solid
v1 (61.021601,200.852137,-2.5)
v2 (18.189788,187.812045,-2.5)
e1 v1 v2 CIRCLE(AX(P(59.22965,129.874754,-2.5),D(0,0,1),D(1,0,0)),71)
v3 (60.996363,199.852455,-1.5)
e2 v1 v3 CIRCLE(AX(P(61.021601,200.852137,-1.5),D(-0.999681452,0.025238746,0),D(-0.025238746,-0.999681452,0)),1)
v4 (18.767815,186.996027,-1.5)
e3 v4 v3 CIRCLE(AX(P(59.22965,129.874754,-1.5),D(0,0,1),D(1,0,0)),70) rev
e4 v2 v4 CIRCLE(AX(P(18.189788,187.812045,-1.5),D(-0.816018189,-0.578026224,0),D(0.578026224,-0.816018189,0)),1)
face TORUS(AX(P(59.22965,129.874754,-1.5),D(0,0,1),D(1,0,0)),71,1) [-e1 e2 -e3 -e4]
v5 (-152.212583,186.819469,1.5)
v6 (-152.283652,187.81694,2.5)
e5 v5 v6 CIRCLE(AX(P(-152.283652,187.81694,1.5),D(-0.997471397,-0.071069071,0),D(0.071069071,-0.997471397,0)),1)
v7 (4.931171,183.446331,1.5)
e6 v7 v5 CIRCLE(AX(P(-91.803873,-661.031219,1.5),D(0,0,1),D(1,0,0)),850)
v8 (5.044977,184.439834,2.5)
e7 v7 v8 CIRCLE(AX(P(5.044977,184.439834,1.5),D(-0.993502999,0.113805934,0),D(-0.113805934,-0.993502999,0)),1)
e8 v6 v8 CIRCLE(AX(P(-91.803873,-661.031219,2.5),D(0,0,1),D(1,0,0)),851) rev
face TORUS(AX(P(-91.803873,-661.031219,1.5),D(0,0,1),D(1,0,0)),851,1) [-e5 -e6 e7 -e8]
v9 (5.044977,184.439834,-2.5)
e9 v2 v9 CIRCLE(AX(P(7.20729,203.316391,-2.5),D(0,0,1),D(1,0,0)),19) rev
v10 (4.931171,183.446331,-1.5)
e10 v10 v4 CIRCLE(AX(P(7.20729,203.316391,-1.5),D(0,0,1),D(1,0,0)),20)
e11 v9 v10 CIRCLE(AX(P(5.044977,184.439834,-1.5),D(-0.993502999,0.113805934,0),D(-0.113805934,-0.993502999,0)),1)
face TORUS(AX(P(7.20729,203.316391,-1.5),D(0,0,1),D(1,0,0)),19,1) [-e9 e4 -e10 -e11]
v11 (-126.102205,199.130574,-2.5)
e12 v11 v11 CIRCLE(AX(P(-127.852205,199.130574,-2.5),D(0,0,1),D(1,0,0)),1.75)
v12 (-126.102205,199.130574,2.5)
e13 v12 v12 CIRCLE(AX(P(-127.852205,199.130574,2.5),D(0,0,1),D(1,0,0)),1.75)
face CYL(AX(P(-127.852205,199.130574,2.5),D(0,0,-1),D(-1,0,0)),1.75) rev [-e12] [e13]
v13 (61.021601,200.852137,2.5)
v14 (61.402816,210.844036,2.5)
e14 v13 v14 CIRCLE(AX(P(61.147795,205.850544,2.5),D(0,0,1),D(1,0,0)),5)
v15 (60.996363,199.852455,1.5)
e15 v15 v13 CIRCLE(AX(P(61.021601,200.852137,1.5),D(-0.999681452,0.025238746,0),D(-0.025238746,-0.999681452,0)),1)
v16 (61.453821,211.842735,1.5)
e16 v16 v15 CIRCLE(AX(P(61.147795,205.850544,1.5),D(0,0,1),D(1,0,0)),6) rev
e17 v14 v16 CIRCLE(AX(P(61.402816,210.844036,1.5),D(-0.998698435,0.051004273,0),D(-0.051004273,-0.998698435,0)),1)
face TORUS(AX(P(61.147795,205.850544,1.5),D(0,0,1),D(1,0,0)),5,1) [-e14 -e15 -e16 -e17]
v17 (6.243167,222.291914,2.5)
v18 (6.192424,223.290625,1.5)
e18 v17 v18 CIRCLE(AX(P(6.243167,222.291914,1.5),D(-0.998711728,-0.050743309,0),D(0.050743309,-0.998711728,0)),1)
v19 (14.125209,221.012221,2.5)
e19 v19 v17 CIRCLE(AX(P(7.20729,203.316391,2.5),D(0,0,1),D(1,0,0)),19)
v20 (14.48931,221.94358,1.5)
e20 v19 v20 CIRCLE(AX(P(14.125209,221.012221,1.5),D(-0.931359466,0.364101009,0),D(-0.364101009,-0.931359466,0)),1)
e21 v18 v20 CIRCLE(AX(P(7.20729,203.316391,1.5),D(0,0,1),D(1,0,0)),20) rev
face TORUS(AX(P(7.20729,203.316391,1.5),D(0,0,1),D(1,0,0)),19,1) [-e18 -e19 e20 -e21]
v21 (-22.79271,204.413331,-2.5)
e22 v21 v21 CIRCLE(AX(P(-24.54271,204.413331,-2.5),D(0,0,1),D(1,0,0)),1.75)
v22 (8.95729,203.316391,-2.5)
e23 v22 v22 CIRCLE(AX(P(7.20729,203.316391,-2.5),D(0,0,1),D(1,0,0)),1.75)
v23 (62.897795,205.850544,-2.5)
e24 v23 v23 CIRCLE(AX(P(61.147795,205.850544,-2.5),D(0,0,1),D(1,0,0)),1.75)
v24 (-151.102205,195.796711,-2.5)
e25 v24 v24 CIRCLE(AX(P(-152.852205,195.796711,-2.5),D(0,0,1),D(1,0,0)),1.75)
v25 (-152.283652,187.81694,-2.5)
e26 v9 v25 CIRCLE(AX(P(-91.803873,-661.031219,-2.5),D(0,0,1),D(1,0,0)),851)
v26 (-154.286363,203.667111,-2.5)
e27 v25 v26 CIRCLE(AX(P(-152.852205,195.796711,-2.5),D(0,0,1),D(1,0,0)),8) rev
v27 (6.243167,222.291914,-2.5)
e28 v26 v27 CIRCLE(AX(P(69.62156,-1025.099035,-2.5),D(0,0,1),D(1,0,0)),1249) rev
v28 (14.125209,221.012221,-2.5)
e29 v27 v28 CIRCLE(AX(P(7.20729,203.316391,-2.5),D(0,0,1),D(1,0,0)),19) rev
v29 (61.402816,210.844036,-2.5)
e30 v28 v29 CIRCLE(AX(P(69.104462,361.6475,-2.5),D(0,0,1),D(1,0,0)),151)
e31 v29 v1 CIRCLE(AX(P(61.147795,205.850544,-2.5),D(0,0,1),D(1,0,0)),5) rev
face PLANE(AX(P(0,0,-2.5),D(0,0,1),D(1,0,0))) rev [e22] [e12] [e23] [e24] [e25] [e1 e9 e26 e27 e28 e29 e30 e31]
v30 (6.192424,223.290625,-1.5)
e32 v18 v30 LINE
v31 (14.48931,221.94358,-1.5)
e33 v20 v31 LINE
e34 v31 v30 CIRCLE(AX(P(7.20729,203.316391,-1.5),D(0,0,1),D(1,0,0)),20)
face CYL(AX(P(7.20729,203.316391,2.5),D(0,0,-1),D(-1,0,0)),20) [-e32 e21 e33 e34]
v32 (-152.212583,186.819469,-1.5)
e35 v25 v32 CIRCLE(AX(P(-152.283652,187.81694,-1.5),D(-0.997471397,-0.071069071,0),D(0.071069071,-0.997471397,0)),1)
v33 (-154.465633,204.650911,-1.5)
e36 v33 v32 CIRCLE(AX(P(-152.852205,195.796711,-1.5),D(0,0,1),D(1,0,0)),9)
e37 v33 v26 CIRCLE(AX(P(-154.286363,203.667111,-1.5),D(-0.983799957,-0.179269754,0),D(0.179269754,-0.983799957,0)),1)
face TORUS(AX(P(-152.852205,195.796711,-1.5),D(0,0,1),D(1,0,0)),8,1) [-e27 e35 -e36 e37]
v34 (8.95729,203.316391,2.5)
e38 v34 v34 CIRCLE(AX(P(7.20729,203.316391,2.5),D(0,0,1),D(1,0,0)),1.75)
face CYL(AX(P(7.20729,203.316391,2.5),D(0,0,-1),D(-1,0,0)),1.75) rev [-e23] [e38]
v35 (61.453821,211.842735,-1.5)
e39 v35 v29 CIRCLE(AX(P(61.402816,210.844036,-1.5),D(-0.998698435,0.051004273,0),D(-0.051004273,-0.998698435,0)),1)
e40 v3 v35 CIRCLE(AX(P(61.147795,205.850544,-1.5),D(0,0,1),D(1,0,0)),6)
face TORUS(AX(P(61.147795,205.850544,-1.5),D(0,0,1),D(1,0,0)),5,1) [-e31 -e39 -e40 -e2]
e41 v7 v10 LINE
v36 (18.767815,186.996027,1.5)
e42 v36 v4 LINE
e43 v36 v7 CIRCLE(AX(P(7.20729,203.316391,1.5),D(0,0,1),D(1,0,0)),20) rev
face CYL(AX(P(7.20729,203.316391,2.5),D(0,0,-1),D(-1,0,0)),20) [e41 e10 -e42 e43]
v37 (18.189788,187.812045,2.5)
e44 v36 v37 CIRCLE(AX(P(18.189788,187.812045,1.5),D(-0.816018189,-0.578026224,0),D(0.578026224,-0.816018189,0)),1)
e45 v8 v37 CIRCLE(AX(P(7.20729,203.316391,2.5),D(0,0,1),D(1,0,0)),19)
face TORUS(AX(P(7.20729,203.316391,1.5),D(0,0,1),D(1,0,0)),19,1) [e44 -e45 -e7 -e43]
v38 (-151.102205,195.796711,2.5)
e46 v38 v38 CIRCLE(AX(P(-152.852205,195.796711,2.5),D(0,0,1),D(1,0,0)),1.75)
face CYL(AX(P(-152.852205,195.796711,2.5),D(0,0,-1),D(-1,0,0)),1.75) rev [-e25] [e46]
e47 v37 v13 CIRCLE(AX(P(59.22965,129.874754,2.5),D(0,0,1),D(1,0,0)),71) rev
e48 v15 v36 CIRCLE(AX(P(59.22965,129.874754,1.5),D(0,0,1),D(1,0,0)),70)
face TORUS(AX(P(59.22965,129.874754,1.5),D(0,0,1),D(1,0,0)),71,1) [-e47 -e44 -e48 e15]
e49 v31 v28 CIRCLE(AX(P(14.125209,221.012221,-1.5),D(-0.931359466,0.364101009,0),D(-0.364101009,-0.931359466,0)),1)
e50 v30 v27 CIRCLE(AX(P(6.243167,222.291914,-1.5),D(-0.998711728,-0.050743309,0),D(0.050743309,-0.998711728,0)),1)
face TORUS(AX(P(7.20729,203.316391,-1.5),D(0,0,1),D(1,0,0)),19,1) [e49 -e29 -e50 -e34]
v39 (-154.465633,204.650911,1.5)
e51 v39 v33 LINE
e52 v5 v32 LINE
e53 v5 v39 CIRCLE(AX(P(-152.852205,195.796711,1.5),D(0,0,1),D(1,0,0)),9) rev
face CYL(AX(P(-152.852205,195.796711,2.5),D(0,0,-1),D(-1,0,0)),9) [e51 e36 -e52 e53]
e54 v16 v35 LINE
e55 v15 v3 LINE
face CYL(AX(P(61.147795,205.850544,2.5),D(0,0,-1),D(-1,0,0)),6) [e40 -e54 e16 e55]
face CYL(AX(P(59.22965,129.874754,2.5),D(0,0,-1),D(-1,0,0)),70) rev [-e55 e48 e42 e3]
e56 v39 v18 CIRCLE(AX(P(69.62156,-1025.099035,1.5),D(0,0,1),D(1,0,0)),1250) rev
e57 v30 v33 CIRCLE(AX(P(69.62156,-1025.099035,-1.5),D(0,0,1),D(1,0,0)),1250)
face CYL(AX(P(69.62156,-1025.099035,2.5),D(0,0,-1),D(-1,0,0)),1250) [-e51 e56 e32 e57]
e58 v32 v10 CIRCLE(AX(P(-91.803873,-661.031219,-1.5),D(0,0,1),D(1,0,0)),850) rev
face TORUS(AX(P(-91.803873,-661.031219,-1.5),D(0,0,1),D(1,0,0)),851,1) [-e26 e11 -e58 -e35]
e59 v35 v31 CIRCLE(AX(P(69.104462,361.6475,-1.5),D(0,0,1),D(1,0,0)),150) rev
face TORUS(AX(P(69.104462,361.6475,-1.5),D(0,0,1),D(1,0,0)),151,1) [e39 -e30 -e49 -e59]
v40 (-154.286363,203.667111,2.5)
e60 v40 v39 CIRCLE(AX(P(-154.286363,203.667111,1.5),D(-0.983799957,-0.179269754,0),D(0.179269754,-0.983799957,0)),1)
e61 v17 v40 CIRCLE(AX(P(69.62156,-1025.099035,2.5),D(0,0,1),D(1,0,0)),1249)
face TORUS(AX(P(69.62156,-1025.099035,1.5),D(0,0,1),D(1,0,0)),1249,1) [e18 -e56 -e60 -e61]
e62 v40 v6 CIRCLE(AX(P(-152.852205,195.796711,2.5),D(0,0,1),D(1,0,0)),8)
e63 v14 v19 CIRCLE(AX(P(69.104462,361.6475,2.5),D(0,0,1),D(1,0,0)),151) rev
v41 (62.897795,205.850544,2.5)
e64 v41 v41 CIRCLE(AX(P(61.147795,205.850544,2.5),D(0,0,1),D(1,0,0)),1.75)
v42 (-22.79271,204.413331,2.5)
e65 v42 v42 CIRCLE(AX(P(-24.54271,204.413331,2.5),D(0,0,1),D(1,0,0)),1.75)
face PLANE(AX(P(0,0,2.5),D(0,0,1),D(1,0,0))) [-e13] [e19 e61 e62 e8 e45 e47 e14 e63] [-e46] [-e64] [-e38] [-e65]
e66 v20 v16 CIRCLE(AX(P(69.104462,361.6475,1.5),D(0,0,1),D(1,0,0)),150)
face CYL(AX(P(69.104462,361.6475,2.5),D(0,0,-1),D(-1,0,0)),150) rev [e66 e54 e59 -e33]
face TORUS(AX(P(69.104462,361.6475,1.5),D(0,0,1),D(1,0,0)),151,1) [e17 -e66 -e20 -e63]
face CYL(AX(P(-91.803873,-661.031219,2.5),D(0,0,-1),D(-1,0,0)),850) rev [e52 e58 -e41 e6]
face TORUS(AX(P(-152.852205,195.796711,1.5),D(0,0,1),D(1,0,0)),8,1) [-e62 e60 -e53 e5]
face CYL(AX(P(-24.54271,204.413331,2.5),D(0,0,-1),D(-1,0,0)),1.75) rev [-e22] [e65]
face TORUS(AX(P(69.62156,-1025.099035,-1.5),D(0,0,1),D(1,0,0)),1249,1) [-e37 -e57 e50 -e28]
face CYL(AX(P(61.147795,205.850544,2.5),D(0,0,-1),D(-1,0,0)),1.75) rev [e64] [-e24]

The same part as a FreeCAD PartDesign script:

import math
import FreeCAD as App
import Part
import Sketcher
from FreeCAD import Vector


def edges_at(feature, points):
    """Names of the edges that pass closest to the given points."""
    edges = feature.Shape.Edges
    near = lambda p: min(range(len(edges)), key=lambda i: edges[i].distToShape(Part.Vertex(*p))[0])
    return sorted({f"Edge{near(p) + 1}" for p in points})

doc = App.newDocument("Part")
params = doc.addObject("Spreadsheet::Sheet", "Params")
for row, (alias, value) in enumerate([
    ("sketch1_radius", "850 mm"),
    ("sketch1_radius2", "20 mm"),
    ("sketch1_radius3", "70 mm"),
    ("sketch1_radius4", "6 mm"),
    ("sketch1_radius5", "150 mm"),
    ("pad1_length", "5 mm"),
    ("fillet_radius", "1 mm"),
], start=1):
    params.set(f"A{row}", alias)
    params.set(f"B{row}", "=" + value)
    params.setAlias(f"B{row}", alias)

body = doc.addObject("PartDesign::Body", "Body")

# Sketch on XY plane
sketch1 = body.newObject("Sketcher::SketchObject", "Sketch")
sketch1.AttachmentSupport = (doc.getObject("XY_Plane"), [""])
sketch1.MapMode = "FlatFace"
sketch1.addGeometry([
    Part.ArcOfCircle(Part.Circle(Vector(-91.8, -661, 0), Vector(0, 0, 1), 850), math.radians(83.47), math.radians(94.08)),  # 0
    Part.ArcOfCircle(Part.Circle(Vector(7.2, 203.3, 0), Vector(0, 0, 1), 20), math.radians(-97), math.radians(-55)),  # 1
    Part.ArcOfCircle(Part.Circle(Vector(59.2, 129.9, 0), Vector(0, 0, 1), 70), math.radians(89), math.radians(125)),  # 2
    Part.ArcOfCircle(Part.Circle(Vector(61.1, 205.9, 0), Vector(0, 0, 1), 6), math.radians(-91), math.radians(87)),  # 3
    Part.ArcOfCircle(Part.Circle(Vector(69.1, 361.6, 0), Vector(0, 0, 1), 150), math.radians(-111.35), math.radians(-92.92)),  # 4
    Part.ArcOfCircle(Part.Circle(Vector(7.2, 203.3, 0), Vector(0, 0, 1), 20), math.radians(69), math.radians(93)),  # 5
    Part.ArcOfCircle(Part.Circle(Vector(69.6, -1025.1, 0), Vector(0, 0, 1), 1250), math.radians(92.91), math.radians(100.33)),  # 6
    Part.ArcOfCircle(Part.Circle(Vector(-152.9, 195.8, 0), Vector(0, 0, 1), 9), math.radians(100), math.radians(274)),  # 7
    Part.Circle(Vector(-127.9, 199.1, 0), Vector(0, 0, 1), 1.8),  # 8
    Part.Circle(Vector(-24.5, 204.4, 0), Vector(0, 0, 1), 1.8),  # 9
    Part.Circle(Vector(-152.9, 195.8, 0), Vector(0, 0, 1), 1.8),  # 10
    Part.Circle(Vector(7.2, 203.3, 0), Vector(0, 0, 1), 1.8),  # 11
    Part.Circle(Vector(61.1, 205.9, 0), Vector(0, 0, 1), 1.8),  # 12
], False)
sketch1.addConstraint([
    Sketcher.Constraint("Tangent", 0, 1, 1, 1),
    Sketcher.Constraint("Tangent", 1, 2, 2, 2),
    Sketcher.Constraint("Tangent", 2, 1, 3, 1),
    Sketcher.Constraint("Tangent", 3, 2, 4, 2),
    Sketcher.Constraint("Tangent", 4, 1, 5, 1),
    Sketcher.Constraint("Tangent", 5, 2, 6, 1),
    Sketcher.Constraint("Tangent", 6, 2, 7, 1),
    Sketcher.Constraint("Tangent", 7, 2, 0, 2),
    Sketcher.Constraint("Coincident", 5, 3, 1, 3),
    Sketcher.Constraint("Coincident", 10, 3, 7, 3),
    Sketcher.Constraint("Coincident", 11, 3, 1, 3),
    Sketcher.Constraint("Coincident", 12, 3, 3, 3),
    Sketcher.Constraint("Equal", 1, 5),
    Sketcher.Constraint("Equal", 8, 9),
    Sketcher.Constraint("Equal", 9, 10),
    Sketcher.Constraint("Equal", 10, 11),
    Sketcher.Constraint("Equal", 11, 12),
    Sketcher.Constraint("Radius", 0, 850.0),
    Sketcher.Constraint("Radius", 1, 20.0),
    Sketcher.Constraint("Radius", 2, 70.0),
    Sketcher.Constraint("Radius", 3, 6.0),
    Sketcher.Constraint("Radius", 4, 150.0),
    Sketcher.Constraint("Radius", 6, 1250.0),
    Sketcher.Constraint("Radius", 7, 9.0),
    Sketcher.Constraint("Diameter", 8, 3.5),
    Sketcher.Constraint("DistanceX", 7, 3, 3, 3, 214.0),
    Sketcher.Constraint("DistanceX", 7, 3, 8, 3, 25.0),
    Sketcher.Constraint("DistanceX", 9, 3, 1, 3, 31.75),
    Sketcher.Constraint("DistanceY", 0, 1, 9, 3, 20.967001),
    Sketcher.Constraint("DistanceY", -1, 1, 4, 3, 361.6475),
    Sketcher.Constraint("DistanceY", 0, 3, -1, 1, 661.031219),
    Sketcher.Constraint("DistanceX", -1, 1, 1, 3, 7.20729),
    Sketcher.Constraint("DistanceY", -1, 1, 1, 3, 203.316391),
    Sketcher.Constraint("DistanceX", -1, 1, 2, 3, 59.22965),
    Sketcher.Constraint("DistanceY", 8, 3, 3, 3, 6.71997),
])
sketch1.setExpression("Constraints[17]", "Params.sketch1_radius")
sketch1.setExpression("Constraints[18]", "Params.sketch1_radius2")
sketch1.setExpression("Constraints[19]", "Params.sketch1_radius3")
sketch1.setExpression("Constraints[20]", "Params.sketch1_radius4")
sketch1.setExpression("Constraints[21]", "Params.sketch1_radius5")
pad1 = body.newObject("PartDesign::Pad", "Pad")
pad1.Profile = sketch1
pad1.setExpression("Length", "Params.pad1_length")
pad1.Midplane = True
doc.recompute()

fillet = body.newObject("PartDesign::Fillet", "Fillet")
fillet.Base = (pad1, edges_at(pad1, [
    (10.412, 223.058, -2.5),
    (37.565, 215.001, -2.5),
    (67.143, 205.622, -2.5),
    (38.842, 196.84, -2.5),
    (12.177, 183.944, -2.5),
    (-73.563, 188.773, -2.5),
    (-161.781, 194.669, -2.5),
    (-74.438, 216.572, 2.5),
    (-74.438, 216.572, -2.5),
    (-161.781, 194.669, 2.5),
    (-73.563, 188.773, 2.5),
    (12.177, 183.944, 2.5),
    (38.842, 196.84, 2.5),
    (67.143, 205.622, 2.5),
    (37.565, 215.001, 2.5),
    (10.412, 223.058, 2.5),
]))
fillet.setExpression("Radius", "Params.fillet_radius")

doc.recompute()
